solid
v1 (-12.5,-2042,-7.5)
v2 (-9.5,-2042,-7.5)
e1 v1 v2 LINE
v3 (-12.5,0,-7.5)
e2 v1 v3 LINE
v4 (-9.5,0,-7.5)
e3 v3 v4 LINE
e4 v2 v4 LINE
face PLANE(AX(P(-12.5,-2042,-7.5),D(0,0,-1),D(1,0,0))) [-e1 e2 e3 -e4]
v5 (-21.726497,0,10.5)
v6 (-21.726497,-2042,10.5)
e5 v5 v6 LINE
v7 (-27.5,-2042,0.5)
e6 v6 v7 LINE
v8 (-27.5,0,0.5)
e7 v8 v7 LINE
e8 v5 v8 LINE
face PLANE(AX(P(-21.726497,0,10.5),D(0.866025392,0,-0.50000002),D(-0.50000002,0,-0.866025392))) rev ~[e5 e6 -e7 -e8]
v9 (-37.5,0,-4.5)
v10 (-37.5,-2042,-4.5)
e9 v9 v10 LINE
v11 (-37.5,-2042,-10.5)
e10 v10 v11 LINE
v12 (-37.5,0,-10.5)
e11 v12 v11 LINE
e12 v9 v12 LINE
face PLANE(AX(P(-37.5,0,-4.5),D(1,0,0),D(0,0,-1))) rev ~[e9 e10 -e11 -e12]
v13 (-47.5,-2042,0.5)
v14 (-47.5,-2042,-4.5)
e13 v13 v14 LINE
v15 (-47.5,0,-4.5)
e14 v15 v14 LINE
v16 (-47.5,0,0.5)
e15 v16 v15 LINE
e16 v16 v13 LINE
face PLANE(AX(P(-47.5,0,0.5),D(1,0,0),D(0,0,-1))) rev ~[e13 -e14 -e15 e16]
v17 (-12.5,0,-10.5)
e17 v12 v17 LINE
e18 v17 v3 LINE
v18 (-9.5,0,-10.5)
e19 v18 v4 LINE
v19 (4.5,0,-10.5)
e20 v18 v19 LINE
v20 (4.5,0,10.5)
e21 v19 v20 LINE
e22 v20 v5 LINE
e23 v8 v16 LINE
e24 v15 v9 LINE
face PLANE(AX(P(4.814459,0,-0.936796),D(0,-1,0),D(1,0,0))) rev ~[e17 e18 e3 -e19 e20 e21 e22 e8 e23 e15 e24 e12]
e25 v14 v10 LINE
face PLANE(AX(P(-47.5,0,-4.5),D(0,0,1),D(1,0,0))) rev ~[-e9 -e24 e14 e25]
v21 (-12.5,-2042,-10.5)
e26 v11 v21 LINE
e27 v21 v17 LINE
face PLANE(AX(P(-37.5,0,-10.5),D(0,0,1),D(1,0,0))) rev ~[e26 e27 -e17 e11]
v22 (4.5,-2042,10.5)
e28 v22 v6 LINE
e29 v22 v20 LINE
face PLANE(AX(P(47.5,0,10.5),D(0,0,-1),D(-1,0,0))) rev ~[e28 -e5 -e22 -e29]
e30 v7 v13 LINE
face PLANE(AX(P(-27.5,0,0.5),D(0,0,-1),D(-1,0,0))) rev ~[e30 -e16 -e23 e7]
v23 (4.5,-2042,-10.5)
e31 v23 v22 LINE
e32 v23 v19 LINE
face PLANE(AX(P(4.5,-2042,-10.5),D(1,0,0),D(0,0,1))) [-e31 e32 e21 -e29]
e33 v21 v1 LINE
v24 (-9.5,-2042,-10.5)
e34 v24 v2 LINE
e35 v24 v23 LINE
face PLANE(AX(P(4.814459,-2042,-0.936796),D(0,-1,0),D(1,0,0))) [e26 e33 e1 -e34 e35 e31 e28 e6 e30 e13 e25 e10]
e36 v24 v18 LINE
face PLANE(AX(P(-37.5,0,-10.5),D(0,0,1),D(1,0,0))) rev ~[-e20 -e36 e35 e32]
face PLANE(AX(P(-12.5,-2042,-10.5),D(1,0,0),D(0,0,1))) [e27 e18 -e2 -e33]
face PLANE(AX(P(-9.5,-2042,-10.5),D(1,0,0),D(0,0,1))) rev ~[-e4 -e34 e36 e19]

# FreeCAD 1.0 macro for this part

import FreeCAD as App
import Part
import Sketcher
Q = App.Units.Quantity


def add_polygon(sketch, points):
    """Adds a closed chain of lines whose ends are joined by coincident constraints."""
    first, n = sketch.GeometryCount, len(points)
    for a, b in zip(points, points[1:] + points[:1]):
        sketch.addGeometry(Part.LineSegment(App.Vector(*a, 0), App.Vector(*b, 0)), False)
    for i in range(n):
        sketch.addConstraint(Sketcher.Constraint("Coincident", first + i, 2, first + (i + 1) % n, 1))

doc = App.newDocument("Part")
body = doc.addObject("PartDesign::Body", "Body")

# Sketch on XZ plane
sketch1 = doc.addObject("Sketcher::SketchObject", "Sketch")
body.addObject(sketch1)
sketch1.AttachmentSupport = (doc.XZ_Plane, [""])
sketch1.MapMode = "FlatFace"
add_polygon(sketch1, [(48, 10), (-22, 10), (-28, 0), (-48, 0), (-48, -4), (-38, -4), (-38, -10), (48, -10), (48, -4), (38, -4), (38, 0), (48, 0)])  # lines 0-11
sketch1.addConstraint(Sketcher.Constraint("Horizontal", 0))
sketch1.addConstraint(Sketcher.Constraint("Horizontal", 2))
sketch1.addConstraint(Sketcher.Constraint("Vertical", 3))
sketch1.addConstraint(Sketcher.Constraint("Horizontal", 4))
sketch1.addConstraint(Sketcher.Constraint("Vertical", 5))
sketch1.addConstraint(Sketcher.Constraint("Horizontal", 6))
sketch1.addConstraint(Sketcher.Constraint("Vertical", 7))
sketch1.addConstraint(Sketcher.Constraint("Horizontal", 8))
sketch1.addConstraint(Sketcher.Constraint("Vertical", 9))
sketch1.addConstraint(Sketcher.Constraint("Horizontal", 10))
sketch1.addConstraint(Sketcher.Constraint("Vertical", 11))
sketch1.addConstraint(Sketcher.Constraint("Symmetric", 3, 2, 7, 2, -2))
sketch1.addConstraint(Sketcher.Constraint("Symmetric", 2, 2, 10, 2, -2))
sketch1.addConstraint(Sketcher.Constraint("Equal", 4, 8))
sketch1.addConstraint(Sketcher.Constraint("Equal", 10, 11))
sketch1.addConstraint(Sketcher.Constraint("DistanceX", 2, 2, 2, 1, Q("20 mm")))
sketch1.addConstraint(Sketcher.Constraint("DistanceX", 4, 1, 4, 2, Q("10 mm")))
sketch1.addConstraint(Sketcher.Constraint("DistanceX", 6, 1, 6, 2, Q("85 mm")))
sketch1.addConstraint(Sketcher.Constraint("DistanceY", 3, 2, 3, 1, Q("5 mm")))
sketch1.addConstraint(Sketcher.Constraint("DistanceY", 5, 2, 5, 1, Q("6 mm")))
sketch1.addConstraint(Sketcher.Constraint("Angle", 1, Q("-120.000001 deg")))
sketch1.addConstraint(Sketcher.Constraint("DistanceY", -1, 1, 0, 2, Q("10.5 mm")))
pad1 = doc.addObject("PartDesign::Pad", "Pad")
body.addObject(pad1)
pad1.Profile = sketch1
pad1.Length = 2042

# Sketch on XZ plane
sketch2 = doc.addObject("Sketcher::SketchObject", "Sketch001")
body.addObject(sketch2)
sketch2.AttachmentSupport = (doc.XZ_Plane, [""])
sketch2.MapMode = "FlatFace"
sketch2.AttachmentOffset = App.Placement(App.Vector(0, 0, 2042), App.Rotation())
add_polygon(sketch2, [(-12.5, -7.5), (-12.5, -10.5), (-9.5, -10.5), (-9.5, -7.5)])  # lines 0-3
add_polygon(sketch2, [(4.5, 10.5), (4.5, -10.5), (47.5, -10.5), (47.5, 10.5)])  # lines 4-7
sketch2.addConstraint(Sketcher.Constraint("Vertical", 0))
sketch2.addConstraint(Sketcher.Constraint("Horizontal", 1))
sketch2.addConstraint(Sketcher.Constraint("Vertical", 2))
sketch2.addConstraint(Sketcher.Constraint("Horizontal", 3))
sketch2.addConstraint(Sketcher.Constraint("Vertical", 4))
sketch2.addConstraint(Sketcher.Constraint("Horizontal", 5))
sketch2.addConstraint(Sketcher.Constraint("Vertical", 6))
sketch2.addConstraint(Sketcher.Constraint("Horizontal", 7))
sketch2.addConstraint(Sketcher.Constraint("Horizontal", 1, 2, 4, 2))
sketch2.addConstraint(Sketcher.Constraint("Equal", 3, 0))
sketch2.addConstraint(Sketcher.Constraint("DistanceX", 1, 1, 1, 2, Q("3 mm")))
sketch2.addConstraint(Sketcher.Constraint("DistanceX", 5, 1, 5, 2, Q("43 mm")))
sketch2.addConstraint(Sketcher.Constraint("DistanceY", 4, 2, 4, 1, Q("21 mm")))
sketch2.addConstraint(Sketcher.Constraint("DistanceX", 1, 2, 4, 2, Q("14 mm")))
sketch2.addConstraint(Sketcher.Constraint("DistanceX", 0, 2, -1, 1, Q("12.5 mm")))
sketch2.addConstraint(Sketcher.Constraint("DistanceY", 0, 2, -1, 1, Q("10.5 mm")))
pocket1 = doc.addObject("PartDesign::Pocket", "Pocket")
body.addObject(pocket1)
pocket1.Profile = sketch2
pocket1.Type = "ThroughAll"

doc.recompute()
